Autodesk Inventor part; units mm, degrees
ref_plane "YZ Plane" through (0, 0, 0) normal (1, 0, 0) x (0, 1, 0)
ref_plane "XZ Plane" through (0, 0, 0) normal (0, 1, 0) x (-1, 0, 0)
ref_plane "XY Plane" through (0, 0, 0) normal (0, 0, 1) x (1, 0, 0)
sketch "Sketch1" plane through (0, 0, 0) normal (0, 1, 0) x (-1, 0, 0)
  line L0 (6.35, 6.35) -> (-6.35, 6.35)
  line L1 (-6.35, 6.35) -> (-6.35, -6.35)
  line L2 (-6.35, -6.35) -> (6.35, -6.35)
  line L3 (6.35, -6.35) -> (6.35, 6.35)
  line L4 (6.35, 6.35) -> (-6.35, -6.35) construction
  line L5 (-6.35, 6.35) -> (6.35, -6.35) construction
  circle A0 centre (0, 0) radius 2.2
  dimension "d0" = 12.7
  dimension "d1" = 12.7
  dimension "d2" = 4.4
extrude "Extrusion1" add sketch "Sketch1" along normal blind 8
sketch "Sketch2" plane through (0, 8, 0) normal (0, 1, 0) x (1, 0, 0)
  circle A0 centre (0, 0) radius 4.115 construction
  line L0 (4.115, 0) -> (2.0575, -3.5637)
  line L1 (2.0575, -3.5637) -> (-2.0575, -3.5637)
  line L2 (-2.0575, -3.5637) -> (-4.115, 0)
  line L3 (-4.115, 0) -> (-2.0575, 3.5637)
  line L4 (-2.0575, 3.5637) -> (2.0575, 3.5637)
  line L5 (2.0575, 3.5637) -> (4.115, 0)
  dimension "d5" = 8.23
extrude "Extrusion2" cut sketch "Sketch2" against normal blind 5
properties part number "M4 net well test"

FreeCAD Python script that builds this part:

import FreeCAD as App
import Part
import Sketcher
from FreeCAD import Vector
Q = App.Units.Quantity

doc = App.newDocument("Part")
body = doc.addObject("PartDesign::Body", "Body")

# Sketch on XZ plane
sketch1 = body.newObject("Sketcher::SketchObject", "Sketch")
sketch1.AttachmentSupport = (doc.getObject("XZ_Plane"), [""])
sketch1.MapMode = "FlatFace"
sketch1.addGeometry([
    Part.LineSegment(Vector(-6.3, -6.3, 0), Vector(-6.3, 6.3, 0)),  # 0
    Part.LineSegment(Vector(-6.3, 6.3, 0), Vector(6.3, 6.3, 0)),  # 1
    Part.LineSegment(Vector(6.3, 6.3, 0), Vector(6.3, -6.3, 0)),  # 2
    Part.LineSegment(Vector(6.3, -6.3, 0), Vector(-6.3, -6.3, 0)),  # 3
    Part.Circle(Vector(0, 0, 0), Vector(0, 0, 1), 2.2),  # 4
], False)
sketch1.addConstraint([
    Sketcher.Constraint("Coincident", 0, 2, 1, 1),
    Sketcher.Constraint("Coincident", 1, 2, 2, 1),
    Sketcher.Constraint("Coincident", 2, 2, 3, 1),
    Sketcher.Constraint("Coincident", 3, 2, 0, 1),
    Sketcher.Constraint("Vertical", 0),
    Sketcher.Constraint("Horizontal", 1),
    Sketcher.Constraint("Vertical", 2),
    Sketcher.Constraint("Horizontal", 3),
    Sketcher.Constraint("Coincident", 4, 3, -1, 1),
    Sketcher.Constraint("Symmetric", 0, 2, 2, 2, -1, 1),
    Sketcher.Constraint("Equal", 3, 0),
    Sketcher.Constraint("Diameter", 4, Q("4.4 mm")),
    Sketcher.Constraint("DistanceX", 1, 1, 1, 2, Q("12.7 mm")),
])
pad1 = body.newObject("PartDesign::Pad", "Pad")
pad1.Profile = sketch1
pad1.Length = 8
pad1.Reversed = True

# Sketch on XZ plane
sketch2 = body.newObject("Sketcher::SketchObject", "Sketch001")
sketch2.AttachmentSupport = (doc.getObject("XZ_Plane"), [""])
sketch2.MapMode = "FlatFace"
sketch2.AttachmentOffset = App.Placement(Vector(0, 0, -8), App.Rotation())
sketch2.addGeometry([
    Part.LineSegment(Vector(2.1, 3.6, 0), Vector(4.1, 0, 0)),  # 0
    Part.LineSegment(Vector(4.1, 0, 0), Vector(2.1, -3.6, 0)),  # 1
    Part.LineSegment(Vector(2.1, -3.6, 0), Vector(-2.1, -3.6, 0)),  # 2
    Part.LineSegment(Vector(-2.1, -3.6, 0), Vector(-4.1, 0, 0)),  # 3
    Part.LineSegment(Vector(-4.1, 0, 0), Vector(-2.1, 3.6, 0)),  # 4
    Part.LineSegment(Vector(-2.1, 3.6, 0), Vector(2.1, 3.6, 0)),  # 5
], False)
sketch2.addConstraint([
    Sketcher.Constraint("Coincident", 0, 2, 1, 1),
    Sketcher.Constraint("Coincident", 1, 2, 2, 1),
    Sketcher.Constraint("Coincident", 2, 2, 3, 1),
    Sketcher.Constraint("Coincident", 3, 2, 4, 1),
    Sketcher.Constraint("Coincident", 4, 2, 5, 1),
    Sketcher.Constraint("Coincident", 5, 2, 0, 1),
    Sketcher.Constraint("Horizontal", 2),
    Sketcher.Constraint("Horizontal", 5),
    Sketcher.Constraint("Symmetric", 0, 2, 3, 2, -1, 1),
    Sketcher.Constraint("Symmetric", 1, 2, 4, 2, -1, 1),
    Sketcher.Constraint("PointOnObject", 0, 2, -1),
    Sketcher.Constraint("Parallel", 0, 3),
    Sketcher.Constraint("Vertical", 2, 2, 4, 2),
    Sketcher.Constraint("Angle", 0, Q("-60 deg")),
    Sketcher.Constraint("DistanceX", 3, 2, 0, 2, Q("8.23 mm")),
    Sketcher.Constraint("DistanceX", 2, 2, 2, 1, Q("4.115 mm")),
])
pocket1 = body.newObject("PartDesign::Pocket", "Pocket")
pocket1.Profile = sketch2
pocket1.Length = 5
pocket1.Reversed = True

doc.recompute()
